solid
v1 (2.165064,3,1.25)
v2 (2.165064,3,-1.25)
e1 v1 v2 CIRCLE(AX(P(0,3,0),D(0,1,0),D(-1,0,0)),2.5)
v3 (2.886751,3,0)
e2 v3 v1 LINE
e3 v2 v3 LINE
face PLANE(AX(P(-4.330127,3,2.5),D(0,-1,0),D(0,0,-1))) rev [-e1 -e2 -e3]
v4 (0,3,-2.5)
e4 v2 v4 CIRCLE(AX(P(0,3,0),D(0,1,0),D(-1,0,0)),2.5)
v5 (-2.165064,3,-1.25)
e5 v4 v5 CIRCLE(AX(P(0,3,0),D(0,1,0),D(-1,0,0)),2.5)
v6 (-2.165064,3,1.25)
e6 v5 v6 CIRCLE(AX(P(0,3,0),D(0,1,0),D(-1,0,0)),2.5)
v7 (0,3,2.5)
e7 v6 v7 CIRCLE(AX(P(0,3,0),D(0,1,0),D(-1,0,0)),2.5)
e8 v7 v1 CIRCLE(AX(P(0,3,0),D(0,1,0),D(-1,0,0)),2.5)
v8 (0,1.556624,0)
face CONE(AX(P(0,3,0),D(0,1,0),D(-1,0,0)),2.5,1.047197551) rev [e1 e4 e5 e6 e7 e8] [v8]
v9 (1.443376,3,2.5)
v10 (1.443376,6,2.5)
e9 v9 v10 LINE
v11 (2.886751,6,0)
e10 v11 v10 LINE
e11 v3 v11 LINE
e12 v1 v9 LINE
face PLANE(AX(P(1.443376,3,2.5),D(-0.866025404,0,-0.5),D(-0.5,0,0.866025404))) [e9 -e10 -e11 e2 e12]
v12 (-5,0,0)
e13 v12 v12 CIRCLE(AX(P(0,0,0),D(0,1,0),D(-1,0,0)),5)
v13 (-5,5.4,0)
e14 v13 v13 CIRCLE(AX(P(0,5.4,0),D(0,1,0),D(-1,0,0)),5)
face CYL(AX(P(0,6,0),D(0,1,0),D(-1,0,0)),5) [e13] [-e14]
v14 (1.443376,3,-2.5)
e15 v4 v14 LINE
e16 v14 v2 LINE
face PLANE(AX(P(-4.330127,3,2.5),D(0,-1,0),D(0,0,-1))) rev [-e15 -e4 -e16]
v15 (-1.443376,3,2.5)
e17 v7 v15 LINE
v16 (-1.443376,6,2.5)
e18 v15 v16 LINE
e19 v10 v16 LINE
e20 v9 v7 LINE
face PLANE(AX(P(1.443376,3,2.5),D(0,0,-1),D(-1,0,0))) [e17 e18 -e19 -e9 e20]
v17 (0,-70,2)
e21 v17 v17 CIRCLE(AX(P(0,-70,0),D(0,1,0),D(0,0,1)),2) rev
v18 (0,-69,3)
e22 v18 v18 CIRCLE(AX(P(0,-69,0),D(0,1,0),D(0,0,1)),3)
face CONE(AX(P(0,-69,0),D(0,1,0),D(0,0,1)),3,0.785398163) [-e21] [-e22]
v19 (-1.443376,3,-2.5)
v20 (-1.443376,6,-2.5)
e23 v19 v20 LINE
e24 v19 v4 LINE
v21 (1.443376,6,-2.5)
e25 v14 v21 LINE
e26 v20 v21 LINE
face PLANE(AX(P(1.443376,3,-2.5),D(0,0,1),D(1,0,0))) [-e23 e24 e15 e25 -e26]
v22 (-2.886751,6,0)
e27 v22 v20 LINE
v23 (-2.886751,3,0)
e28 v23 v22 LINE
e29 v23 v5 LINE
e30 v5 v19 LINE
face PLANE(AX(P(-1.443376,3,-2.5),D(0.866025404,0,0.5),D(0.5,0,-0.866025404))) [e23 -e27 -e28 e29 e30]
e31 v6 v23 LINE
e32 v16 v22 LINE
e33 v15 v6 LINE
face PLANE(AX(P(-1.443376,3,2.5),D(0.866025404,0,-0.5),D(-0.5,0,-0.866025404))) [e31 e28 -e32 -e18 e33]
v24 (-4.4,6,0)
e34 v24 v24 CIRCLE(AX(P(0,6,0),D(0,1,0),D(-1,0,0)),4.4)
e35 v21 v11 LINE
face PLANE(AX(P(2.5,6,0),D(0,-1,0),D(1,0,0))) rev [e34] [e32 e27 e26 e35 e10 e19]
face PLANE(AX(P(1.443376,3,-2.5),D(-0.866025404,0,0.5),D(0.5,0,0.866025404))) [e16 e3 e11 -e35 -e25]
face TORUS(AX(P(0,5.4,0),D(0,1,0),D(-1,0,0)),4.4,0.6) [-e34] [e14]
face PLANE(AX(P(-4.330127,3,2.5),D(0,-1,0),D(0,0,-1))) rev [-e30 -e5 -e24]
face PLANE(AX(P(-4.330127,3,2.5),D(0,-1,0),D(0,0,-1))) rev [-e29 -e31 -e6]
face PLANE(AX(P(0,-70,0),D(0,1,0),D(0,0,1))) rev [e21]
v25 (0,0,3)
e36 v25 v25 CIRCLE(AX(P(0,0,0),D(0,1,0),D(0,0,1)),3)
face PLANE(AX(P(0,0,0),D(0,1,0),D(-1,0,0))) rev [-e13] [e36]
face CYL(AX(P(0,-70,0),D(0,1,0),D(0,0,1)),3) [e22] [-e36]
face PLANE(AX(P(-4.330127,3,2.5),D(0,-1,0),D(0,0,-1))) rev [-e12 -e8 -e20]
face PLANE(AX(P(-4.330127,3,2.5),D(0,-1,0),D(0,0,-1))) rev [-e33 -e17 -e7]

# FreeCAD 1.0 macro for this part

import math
import FreeCAD as App
import Part
import Sketcher

V = App.Vector
Q = App.Units.Quantity


def edges_at(feature, points):
    """Names of the edges that pass closest to the given points."""
    edges = feature.Shape.Edges
    near = lambda p: min(range(len(edges)), key=lambda i: edges[i].distToShape(Part.Vertex(*p))[0])
    return sorted({f"Edge{near(p) + 1}" for p in points})

doc = App.newDocument("Part")
body = doc.addObject("PartDesign::Body", "Body")

# Sketch on XZ plane
sketch1 = doc.addObject("Sketcher::SketchObject", "Sketch")
body.addObject(sketch1)
sketch1.AttachmentSupport = (doc.XZ_Plane, [""])
sketch1.MapMode = "FlatFace"
sketch1.addGeometry(Part.Circle(V(0, 0, 0), V(0, 0, 1), 3), False)
sketch1.addConstraint(Sketcher.Constraint("Coincident", 0, 3, -1, 1))
sketch1.addConstraint(Sketcher.Constraint("Diameter", 0, Q("6 mm")))
pad1 = doc.addObject("PartDesign::Pad", "Pad")
body.addObject(pad1)
pad1.Profile = sketch1
pad1.Length = 70
doc.recompute()

chamfer = doc.addObject("PartDesign::Chamfer", "Chamfer")
body.addObject(chamfer)
chamfer.Base = (pad1, edges_at(pad1, [(0, -70, -3)]))
chamfer.Size = 1

# Sketch on XY plane
sketch2 = doc.addObject("Sketcher::SketchObject", "Sketch001")
body.addObject(sketch2)
sketch2.AttachmentSupport = (doc.XY_Plane, [""])
sketch2.MapMode = "FlatFace"
sketch2.addGeometry(Part.LineSegment(V(2.5, 6, 0), V(2.5, 3, 0)), False)
sketch2.addGeometry(Part.LineSegment(V(2.5, 3, 0), V(0, 1.6, 0)), False)
sketch2.addGeometry(Part.LineSegment(V(0, 1.6, 0), V(0, 0, 0)), False)
sketch2.addGeometry(Part.LineSegment(V(0, 0, 0), V(5, 0, 0)), False)
sketch2.addGeometry(Part.LineSegment(V(5, 0, 0), V(5, 5.4, 0)), False)
sketch2.addGeometry(Part.ArcOfCircle(Part.Circle(V(4.4, 5.4, 0), V(0, 0, 1), 0.6), math.radians(0), math.radians(90)), False)
sketch2.addGeometry(Part.LineSegment(V(4.4, 6, 0), V(2.5, 6, 0)), False)
sketch2.addConstraint(Sketcher.Constraint("Coincident", 0, 2, 1, 1))
sketch2.addConstraint(Sketcher.Constraint("Coincident", 1, 2, 2, 1))
sketch2.addConstraint(Sketcher.Constraint("Coincident", 2, 2, 3, 1))
sketch2.addConstraint(Sketcher.Constraint("Coincident", 3, 2, 4, 1))
sketch2.addConstraint(Sketcher.Constraint("Tangent", 4, 2, 5, 1))
sketch2.addConstraint(Sketcher.Constraint("Tangent", 5, 2, 6, 1))
sketch2.addConstraint(Sketcher.Constraint("Coincident", 6, 2, 0, 1))
sketch2.addConstraint(Sketcher.Constraint("Vertical", 0))
sketch2.addConstraint(Sketcher.Constraint("Vertical", 2))
sketch2.addConstraint(Sketcher.Constraint("Horizontal", 3))
sketch2.addConstraint(Sketcher.Constraint("Vertical", 4))
sketch2.addConstraint(Sketcher.Constraint("Horizontal", 6))
sketch2.addConstraint(Sketcher.Constraint("Coincident", 2, 2, -1, 1))
sketch2.addConstraint(Sketcher.Constraint("Radius", 5, Q("0.6 mm")))
sketch2.addConstraint(Sketcher.Constraint("DistanceX", 3, 1, 3, 2, Q("5 mm")))
sketch2.addConstraint(Sketcher.Constraint("DistanceY", 0, 2, 0, 1, Q("3 mm")))
sketch2.addConstraint(Sketcher.Constraint("Angle", 1, Q("-150 deg")))
sketch2.addConstraint(Sketcher.Constraint("DistanceX", 6, 2, 6, 1, Q("1.9 mm")))
sketch2.addConstraint(Sketcher.Constraint("DistanceY", 4, 1, 4, 2, Q("5.4 mm")))
revolution = doc.addObject("PartDesign::Revolution", "Revolution")
body.addObject(revolution)
revolution.Profile = sketch2
revolution.ReferenceAxis = (sketch2, ["V_Axis"])
revolution.Angle = 360

# Sketch on XZ plane
sketch3 = doc.addObject("Sketcher::SketchObject", "Sketch002")
body.addObject(sketch3)
sketch3.AttachmentSupport = (doc.XZ_Plane, [""])
sketch3.MapMode = "FlatFace"
sketch3.AttachmentOffset = App.Placement(V(0, 0, -6), App.Rotation())
sketch3.addGeometry(Part.LineSegment(V(1.4, 2.5, 0), V(-1.4, 2.5, 0)), False)
sketch3.addGeometry(Part.LineSegment(V(-1.4, 2.5, 0), V(-2.9, 0, 0)), False)
sketch3.addGeometry(Part.LineSegment(V(-2.9, 0, 0), V(-1.4, -2.5, 0)), False)
sketch3.addGeometry(Part.LineSegment(V(-1.4, -2.5, 0), V(1.4, -2.5, 0)), False)
sketch3.addGeometry(Part.LineSegment(V(1.4, -2.5, 0), V(2.9, 0, 0)), False)
sketch3.addGeometry(Part.LineSegment(V(2.9, 0, 0), V(1.4, 2.5, 0)), False)
sketch3.addConstraint(Sketcher.Constraint("Coincident", 0, 2, 1, 1))
sketch3.addConstraint(Sketcher.Constraint("Coincident", 1, 2, 2, 1))
sketch3.addConstraint(Sketcher.Constraint("Coincident", 2, 2, 3, 1))
sketch3.addConstraint(Sketcher.Constraint("Coincident", 3, 2, 4, 1))
sketch3.addConstraint(Sketcher.Constraint("Coincident", 4, 2, 5, 1))
sketch3.addConstraint(Sketcher.Constraint("Coincident", 5, 2, 0, 1))
sketch3.addConstraint(Sketcher.Constraint("Horizontal", 0))
sketch3.addConstraint(Sketcher.Constraint("Horizontal", 3))
sketch3.addConstraint(Sketcher.Constraint("Symmetric", 0, 2, 3, 2, -1, 1))
sketch3.addConstraint(Sketcher.Constraint("Symmetric", 1, 2, 4, 2, -1, 1))
sketch3.addConstraint(Sketcher.Constraint("PointOnObject", 1, 2, -1))
sketch3.addConstraint(Sketcher.Constraint("Parallel", 2, 5))
sketch3.addConstraint(Sketcher.Constraint("Vertical", 0, 2, 2, 2))
sketch3.addConstraint(Sketcher.Constraint("Angle", 1, Q("-120 deg")))
sketch3.addConstraint(Sketcher.Constraint("DistanceY", 2, 2, 0, 2, Q("5 mm")))
sketch3.addConstraint(Sketcher.Constraint("DistanceX", 0, 2, 0, 1, Q("2.886751 mm")))
pocket1 = doc.addObject("PartDesign::Pocket", "Pocket")
body.addObject(pocket1)
pocket1.Profile = sketch3
pocket1.Length = 3
pocket1.Reversed = True

doc.recompute()
